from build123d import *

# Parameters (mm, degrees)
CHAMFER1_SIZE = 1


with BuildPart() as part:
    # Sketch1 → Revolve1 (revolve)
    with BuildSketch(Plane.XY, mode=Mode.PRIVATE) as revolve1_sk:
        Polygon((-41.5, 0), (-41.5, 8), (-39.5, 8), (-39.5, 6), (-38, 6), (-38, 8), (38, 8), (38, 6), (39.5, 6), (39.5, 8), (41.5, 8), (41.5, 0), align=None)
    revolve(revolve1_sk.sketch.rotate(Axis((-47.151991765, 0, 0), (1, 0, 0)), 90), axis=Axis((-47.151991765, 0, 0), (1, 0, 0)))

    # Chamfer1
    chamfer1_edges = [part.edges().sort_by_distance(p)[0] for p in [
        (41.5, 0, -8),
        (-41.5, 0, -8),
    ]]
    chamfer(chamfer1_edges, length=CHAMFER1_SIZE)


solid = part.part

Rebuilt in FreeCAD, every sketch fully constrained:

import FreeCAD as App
import Part
import Sketcher


def edges_at(feature, points):
    """Names of the edges that pass closest to the given points."""
    edges = feature.Shape.Edges
    near = lambda p: min(range(len(edges)), key=lambda i: edges[i].distToShape(Part.Vertex(*p))[0])
    return sorted({f"Edge{near(p) + 1}" for p in points})


def add_polygon(sketch, points):
    """Adds a closed chain of lines whose ends are joined by coincident constraints."""
    first, n = sketch.GeometryCount, len(points)
    for a, b in zip(points, points[1:] + points[:1]):
        sketch.addGeometry(Part.LineSegment(App.Vector(*a, 0), App.Vector(*b, 0)), False)
    for i in range(n):
        sketch.addConstraint(Sketcher.Constraint("Coincident", first + i, 2, first + (i + 1) % n, 1))

doc = App.newDocument("Part")
body = doc.addObject("PartDesign::Body", "Body")

sketch1 = body.newObject("Sketcher::SketchObject", "Sketch")
sketch1.AttachmentSupport = (doc.getObject("XY_Plane"), [""])
sketch1.MapMode = "FlatFace"
add_polygon(sketch1, [(-41.5, 8), (-41.5, 0), (41.5, 0), (41.5, 8), (39.5, 8), (39.5, 6), (38, 6), (38, 8), (-38, 8), (-38, 6), (-39.5, 6), (-39.5, 8)])
sketch1.addConstraint(Sketcher.Constraint("Vertical", 0))
sketch1.addConstraint(Sketcher.Constraint("Horizontal", 1))
sketch1.addConstraint(Sketcher.Constraint("Vertical", 2))
sketch1.addConstraint(Sketcher.Constraint("Horizontal", 3))
sketch1.addConstraint(Sketcher.Constraint("Vertical", 4))
sketch1.addConstraint(Sketcher.Constraint("Horizontal", 5))
sketch1.addConstraint(Sketcher.Constraint("Vertical", 6))
sketch1.addConstraint(Sketcher.Constraint("Horizontal", 7))
sketch1.addConstraint(Sketcher.Constraint("Vertical", 8))
sketch1.addConstraint(Sketcher.Constraint("Horizontal", 9))
sketch1.addConstraint(Sketcher.Constraint("Vertical", 10))
sketch1.addConstraint(Sketcher.Constraint("Horizontal", 11))
sketch1.addConstraint(Sketcher.Constraint("Symmetric", 0, 2, 1, 2, -1, 1))
sketch1.addConstraint(Sketcher.Constraint("Symmetric", 5, 2, 8, 2, -2))
sketch1.addConstraint(Sketcher.Constraint("Symmetric", 3, 2, 10, 2, -2))
sketch1.addConstraint(Sketcher.Constraint("Horizontal", 3, 2, 6, 2))
sketch1.addConstraint(Sketcher.Constraint("Equal", 11, 4))
sketch1.addConstraint(Sketcher.Constraint("DistanceX", 1, 1, 1, 2, 83.0))
sketch1.addConstraint(Sketcher.Constraint("DistanceX", 3, 2, 3, 1, 2.0))
sketch1.addConstraint(Sketcher.Constraint("DistanceX", 7, 2, 7, 1, 76.0))
sketch1.addConstraint(Sketcher.Constraint("DistanceY", 0, 2, 0, 1, 8.0))
revolution = body.newObject("PartDesign::Revolution", "Revolution")
revolution.Profile = sketch1
revolution.ReferenceAxis = (sketch1, ["H_Axis"])
revolution.Angle = 360
doc.recompute()

chamfer = body.newObject("PartDesign::Chamfer", "Chamfer")
chamfer.Base = (revolution, edges_at(revolution, [(41.5, 0, -8), (-41.5, 0, -8)]))
chamfer.Size = 1

doc.recompute()
